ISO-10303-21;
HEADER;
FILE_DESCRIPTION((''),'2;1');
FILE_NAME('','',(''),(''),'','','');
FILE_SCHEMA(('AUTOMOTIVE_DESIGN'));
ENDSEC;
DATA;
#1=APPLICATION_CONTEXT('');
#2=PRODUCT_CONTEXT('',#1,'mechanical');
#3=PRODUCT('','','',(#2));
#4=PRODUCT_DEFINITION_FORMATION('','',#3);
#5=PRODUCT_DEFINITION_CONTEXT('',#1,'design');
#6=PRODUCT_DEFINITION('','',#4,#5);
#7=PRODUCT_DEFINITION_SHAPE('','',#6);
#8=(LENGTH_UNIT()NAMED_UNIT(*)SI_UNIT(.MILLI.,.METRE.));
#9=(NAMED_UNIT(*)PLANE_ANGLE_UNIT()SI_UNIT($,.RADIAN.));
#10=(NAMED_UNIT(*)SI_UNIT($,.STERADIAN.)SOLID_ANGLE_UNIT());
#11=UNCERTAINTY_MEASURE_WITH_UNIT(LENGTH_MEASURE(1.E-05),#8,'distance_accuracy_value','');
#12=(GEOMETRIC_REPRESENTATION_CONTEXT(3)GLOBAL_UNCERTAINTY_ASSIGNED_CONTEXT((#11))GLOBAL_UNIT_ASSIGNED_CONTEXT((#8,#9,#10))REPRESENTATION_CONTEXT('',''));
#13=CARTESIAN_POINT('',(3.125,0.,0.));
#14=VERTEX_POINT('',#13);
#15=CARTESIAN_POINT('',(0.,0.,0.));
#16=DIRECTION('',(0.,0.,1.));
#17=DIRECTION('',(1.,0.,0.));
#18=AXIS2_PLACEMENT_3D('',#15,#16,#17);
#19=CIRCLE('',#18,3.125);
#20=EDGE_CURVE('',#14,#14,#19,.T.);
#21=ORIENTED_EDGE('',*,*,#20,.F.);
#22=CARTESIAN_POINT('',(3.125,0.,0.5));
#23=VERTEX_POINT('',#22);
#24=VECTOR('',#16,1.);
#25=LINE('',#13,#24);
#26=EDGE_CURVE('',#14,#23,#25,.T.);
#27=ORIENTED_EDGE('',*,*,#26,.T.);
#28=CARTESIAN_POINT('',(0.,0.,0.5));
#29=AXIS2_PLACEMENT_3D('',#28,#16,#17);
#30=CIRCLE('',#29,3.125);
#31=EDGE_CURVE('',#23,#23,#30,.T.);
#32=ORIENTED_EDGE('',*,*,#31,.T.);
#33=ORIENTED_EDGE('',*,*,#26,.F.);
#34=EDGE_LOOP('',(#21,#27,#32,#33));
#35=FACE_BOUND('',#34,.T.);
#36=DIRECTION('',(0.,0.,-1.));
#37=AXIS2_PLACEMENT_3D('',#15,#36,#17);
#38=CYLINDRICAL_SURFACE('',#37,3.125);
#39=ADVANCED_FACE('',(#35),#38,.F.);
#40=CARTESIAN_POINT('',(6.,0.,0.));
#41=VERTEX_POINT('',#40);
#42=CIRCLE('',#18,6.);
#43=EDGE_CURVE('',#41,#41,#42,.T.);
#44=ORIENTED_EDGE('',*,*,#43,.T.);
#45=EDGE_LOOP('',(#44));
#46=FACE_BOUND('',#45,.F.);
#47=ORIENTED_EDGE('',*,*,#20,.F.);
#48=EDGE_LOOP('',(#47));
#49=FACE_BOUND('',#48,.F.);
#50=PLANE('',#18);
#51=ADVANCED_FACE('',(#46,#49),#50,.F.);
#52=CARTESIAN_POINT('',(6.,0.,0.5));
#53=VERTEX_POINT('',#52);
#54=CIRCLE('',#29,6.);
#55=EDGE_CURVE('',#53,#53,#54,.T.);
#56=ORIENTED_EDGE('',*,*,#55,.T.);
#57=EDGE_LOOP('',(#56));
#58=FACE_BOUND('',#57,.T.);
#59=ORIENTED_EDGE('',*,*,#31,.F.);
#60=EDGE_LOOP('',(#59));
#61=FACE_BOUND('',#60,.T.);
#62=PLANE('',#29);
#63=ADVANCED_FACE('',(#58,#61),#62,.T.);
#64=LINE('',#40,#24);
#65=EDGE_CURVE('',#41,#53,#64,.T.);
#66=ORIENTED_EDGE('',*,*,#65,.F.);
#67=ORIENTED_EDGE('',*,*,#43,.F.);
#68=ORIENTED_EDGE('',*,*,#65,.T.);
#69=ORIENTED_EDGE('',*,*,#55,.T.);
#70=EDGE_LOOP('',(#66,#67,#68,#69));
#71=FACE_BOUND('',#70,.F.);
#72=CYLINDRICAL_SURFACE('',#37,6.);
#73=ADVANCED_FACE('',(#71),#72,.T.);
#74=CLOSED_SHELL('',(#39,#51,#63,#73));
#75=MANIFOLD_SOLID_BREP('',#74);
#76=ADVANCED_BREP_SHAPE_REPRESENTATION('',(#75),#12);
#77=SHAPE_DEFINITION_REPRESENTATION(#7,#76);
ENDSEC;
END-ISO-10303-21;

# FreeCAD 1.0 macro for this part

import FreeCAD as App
import Part
import Sketcher
from FreeCAD import Vector

doc = App.newDocument("Part")
body = doc.addObject("PartDesign::Body", "Body")

sketch1 = doc.addObject("Sketcher::SketchObject", "Sketch")
body.addObject(sketch1)
sketch1.AttachmentSupport = (doc.XY_Plane, [""])
sketch1.MapMode = "FlatFace"
sketch1.addGeometry([
    Part.Circle(Vector(0, 0, 0), Vector(0, 0, 1), 6),
    Part.Circle(Vector(0, 0, 0), Vector(0, 0, 1), 3.1),
], False)
sketch1.addConstraint([
    Sketcher.Constraint("Coincident", 0, 3, -1, 1),
    Sketcher.Constraint("Coincident", 1, 3, -1, 1),
    Sketcher.Constraint("Diameter", 0, 12.0),
    Sketcher.Constraint("Diameter", 1, 6.25),
])
pad1 = doc.addObject("PartDesign::Pad", "Pad")
body.addObject(pad1)
pad1.Profile = sketch1
pad1.Length = 0.5

doc.recompute()
